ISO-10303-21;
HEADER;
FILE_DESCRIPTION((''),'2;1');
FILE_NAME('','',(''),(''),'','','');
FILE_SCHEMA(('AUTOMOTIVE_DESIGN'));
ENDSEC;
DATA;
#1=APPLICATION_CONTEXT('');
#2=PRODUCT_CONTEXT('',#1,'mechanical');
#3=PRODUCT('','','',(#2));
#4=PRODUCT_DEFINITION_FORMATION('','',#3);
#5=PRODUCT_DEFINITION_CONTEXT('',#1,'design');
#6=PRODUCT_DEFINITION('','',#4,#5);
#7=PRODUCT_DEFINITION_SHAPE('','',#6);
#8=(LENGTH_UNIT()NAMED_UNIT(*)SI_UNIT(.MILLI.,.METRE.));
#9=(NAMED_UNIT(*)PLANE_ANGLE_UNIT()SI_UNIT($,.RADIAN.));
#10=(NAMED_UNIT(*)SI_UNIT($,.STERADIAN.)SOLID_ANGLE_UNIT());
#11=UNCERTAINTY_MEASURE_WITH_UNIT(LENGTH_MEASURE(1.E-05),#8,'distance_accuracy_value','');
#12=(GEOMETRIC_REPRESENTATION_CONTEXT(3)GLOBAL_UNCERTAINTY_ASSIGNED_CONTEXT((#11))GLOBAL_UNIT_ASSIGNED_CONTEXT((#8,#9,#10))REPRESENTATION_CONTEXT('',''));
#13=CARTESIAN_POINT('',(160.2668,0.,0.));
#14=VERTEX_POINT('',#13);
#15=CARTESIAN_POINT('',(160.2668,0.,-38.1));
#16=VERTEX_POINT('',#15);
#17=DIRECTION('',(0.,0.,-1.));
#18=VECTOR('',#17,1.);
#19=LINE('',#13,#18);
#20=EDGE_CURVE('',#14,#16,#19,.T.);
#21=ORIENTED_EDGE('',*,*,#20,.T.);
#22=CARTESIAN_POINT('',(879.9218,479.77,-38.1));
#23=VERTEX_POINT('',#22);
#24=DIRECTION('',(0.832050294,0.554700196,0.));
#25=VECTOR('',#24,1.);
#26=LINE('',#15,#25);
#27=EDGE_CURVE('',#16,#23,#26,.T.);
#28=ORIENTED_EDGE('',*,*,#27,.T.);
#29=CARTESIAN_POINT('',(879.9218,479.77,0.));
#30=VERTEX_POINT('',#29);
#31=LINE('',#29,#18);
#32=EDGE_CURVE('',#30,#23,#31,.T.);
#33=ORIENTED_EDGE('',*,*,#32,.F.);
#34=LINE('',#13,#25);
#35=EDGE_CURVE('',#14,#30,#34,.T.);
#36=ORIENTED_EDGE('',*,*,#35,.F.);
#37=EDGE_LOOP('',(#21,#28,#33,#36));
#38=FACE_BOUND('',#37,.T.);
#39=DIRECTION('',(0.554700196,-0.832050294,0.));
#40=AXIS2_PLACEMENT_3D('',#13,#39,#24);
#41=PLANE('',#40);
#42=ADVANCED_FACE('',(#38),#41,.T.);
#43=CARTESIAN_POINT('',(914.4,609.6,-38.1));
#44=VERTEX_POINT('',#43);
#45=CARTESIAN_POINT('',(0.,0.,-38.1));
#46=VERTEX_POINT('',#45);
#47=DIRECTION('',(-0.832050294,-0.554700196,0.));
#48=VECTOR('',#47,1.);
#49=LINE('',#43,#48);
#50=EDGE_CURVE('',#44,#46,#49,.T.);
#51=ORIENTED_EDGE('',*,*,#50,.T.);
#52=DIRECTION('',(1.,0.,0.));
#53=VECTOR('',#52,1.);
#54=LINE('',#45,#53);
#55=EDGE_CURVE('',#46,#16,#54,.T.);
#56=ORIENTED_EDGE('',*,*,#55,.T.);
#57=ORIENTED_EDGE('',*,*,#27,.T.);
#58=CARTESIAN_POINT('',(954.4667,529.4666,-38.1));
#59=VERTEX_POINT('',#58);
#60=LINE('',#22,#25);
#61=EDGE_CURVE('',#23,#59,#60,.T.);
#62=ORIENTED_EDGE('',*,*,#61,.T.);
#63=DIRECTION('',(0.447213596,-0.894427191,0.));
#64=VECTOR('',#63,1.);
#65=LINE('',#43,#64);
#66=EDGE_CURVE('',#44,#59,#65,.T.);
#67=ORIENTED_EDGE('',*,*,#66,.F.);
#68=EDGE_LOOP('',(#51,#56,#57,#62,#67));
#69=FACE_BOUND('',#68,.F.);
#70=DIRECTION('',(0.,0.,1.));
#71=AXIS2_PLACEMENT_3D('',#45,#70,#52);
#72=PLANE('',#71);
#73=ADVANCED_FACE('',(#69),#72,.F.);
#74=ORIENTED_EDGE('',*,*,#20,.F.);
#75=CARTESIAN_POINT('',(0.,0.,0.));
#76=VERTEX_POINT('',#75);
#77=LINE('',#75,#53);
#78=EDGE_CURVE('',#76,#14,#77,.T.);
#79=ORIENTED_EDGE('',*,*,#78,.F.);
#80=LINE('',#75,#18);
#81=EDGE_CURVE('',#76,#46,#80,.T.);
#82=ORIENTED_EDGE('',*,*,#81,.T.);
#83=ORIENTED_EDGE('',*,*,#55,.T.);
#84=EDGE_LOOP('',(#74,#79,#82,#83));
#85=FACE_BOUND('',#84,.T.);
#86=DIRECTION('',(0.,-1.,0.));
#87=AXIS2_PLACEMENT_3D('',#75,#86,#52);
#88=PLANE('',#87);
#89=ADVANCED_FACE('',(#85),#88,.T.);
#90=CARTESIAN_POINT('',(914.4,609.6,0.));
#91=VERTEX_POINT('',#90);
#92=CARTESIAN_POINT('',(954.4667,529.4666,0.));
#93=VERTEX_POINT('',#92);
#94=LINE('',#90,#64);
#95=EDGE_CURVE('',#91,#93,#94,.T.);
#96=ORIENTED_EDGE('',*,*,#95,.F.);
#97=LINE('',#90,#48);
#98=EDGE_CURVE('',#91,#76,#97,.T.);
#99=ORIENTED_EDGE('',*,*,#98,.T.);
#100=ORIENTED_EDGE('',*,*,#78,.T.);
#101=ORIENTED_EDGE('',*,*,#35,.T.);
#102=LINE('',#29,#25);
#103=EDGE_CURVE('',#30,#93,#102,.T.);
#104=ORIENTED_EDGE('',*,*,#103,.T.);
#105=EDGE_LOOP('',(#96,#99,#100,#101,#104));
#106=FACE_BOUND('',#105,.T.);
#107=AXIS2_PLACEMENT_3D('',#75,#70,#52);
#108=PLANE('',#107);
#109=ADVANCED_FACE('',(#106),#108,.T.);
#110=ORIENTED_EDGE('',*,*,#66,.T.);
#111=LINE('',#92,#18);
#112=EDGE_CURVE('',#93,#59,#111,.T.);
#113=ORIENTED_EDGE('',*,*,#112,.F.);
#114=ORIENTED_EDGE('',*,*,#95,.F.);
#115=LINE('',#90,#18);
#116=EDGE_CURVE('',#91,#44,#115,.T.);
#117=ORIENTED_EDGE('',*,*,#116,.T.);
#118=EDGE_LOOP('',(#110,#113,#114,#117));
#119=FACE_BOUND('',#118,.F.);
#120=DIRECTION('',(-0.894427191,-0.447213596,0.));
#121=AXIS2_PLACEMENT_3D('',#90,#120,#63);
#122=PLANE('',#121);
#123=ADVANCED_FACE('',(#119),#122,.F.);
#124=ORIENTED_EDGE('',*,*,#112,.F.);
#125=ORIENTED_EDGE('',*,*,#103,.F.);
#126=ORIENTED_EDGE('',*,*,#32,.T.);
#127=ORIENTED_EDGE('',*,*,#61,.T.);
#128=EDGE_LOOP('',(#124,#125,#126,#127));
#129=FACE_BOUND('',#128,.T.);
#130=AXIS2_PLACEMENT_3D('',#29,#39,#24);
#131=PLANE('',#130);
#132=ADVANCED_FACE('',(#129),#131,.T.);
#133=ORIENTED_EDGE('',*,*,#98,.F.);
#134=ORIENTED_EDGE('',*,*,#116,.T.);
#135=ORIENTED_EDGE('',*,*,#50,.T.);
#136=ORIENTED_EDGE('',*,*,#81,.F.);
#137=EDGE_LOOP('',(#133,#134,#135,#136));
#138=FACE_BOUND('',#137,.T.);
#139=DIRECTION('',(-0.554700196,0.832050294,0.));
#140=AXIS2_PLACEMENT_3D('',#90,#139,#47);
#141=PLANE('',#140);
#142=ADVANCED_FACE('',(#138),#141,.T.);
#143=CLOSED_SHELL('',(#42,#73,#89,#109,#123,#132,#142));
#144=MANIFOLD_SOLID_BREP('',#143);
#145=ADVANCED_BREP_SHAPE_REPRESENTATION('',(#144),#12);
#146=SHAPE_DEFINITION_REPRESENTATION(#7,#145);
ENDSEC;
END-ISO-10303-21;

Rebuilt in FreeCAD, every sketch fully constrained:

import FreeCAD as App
import Part
import Sketcher
Q = App.Units.Quantity

doc = App.newDocument("Part")
params = doc.addObject("Spreadsheet::Sheet", "Params")
for row, (alias, value) in enumerate([
    ("pad1_length", "1.5 in"),
], start=1):
    params.set(f"A{row}", alias)
    params.set(f"B{row}", "=" + value)
    params.setAlias(f"B{row}", alias)

body = doc.addObject("PartDesign::Body", "Body")

sketch1 = body.newObject("Sketcher::SketchObject", "Sketch")
sketch1.AttachmentSupport = (doc.getObject("XY_Plane"), [""])
sketch1.MapMode = "FlatFace"
sketch1.addGeometry([
    Part.LineSegment(App.Vector(914, 610, 0), App.Vector(0, 0, 0)),
    Part.LineSegment(App.Vector(0, 0, 0), App.Vector(160, 0, 0)),
    Part.LineSegment(App.Vector(160, 0, 0), App.Vector(954, 529, 0)),
    Part.LineSegment(App.Vector(954, 529, 0), App.Vector(914, 610, 0)),
], False)
sketch1.addConstraint([
    Sketcher.Constraint("Coincident", 0, 2, 1, 1),
    Sketcher.Constraint("Coincident", 1, 2, 2, 1),
    Sketcher.Constraint("Coincident", 2, 2, 3, 1),
    Sketcher.Constraint("Coincident", 3, 2, 0, 1),
    Sketcher.Constraint("Horizontal", 1),
    Sketcher.Constraint("Coincident", 0, 2, -1, 1),
    Sketcher.Constraint("Parallel", 0, 2),
    Sketcher.Constraint("DistanceX", -1, 1, 3, 2, Q("36 in")),
    Sketcher.Constraint("DistanceY", -1, 1, 3, 2, Q("24 in")),
    Sketcher.Constraint("DistanceX", 1, 1, 1, 2, Q("160.2668 mm")),
    Sketcher.Constraint("Distance", 2, Q("954.5095 mm")),
])
pad1 = body.newObject("PartDesign::Pad", "Pad")
pad1.Profile = sketch1
pad1.setExpression("Length", "Params.pad1_length")
pad1.Reversed = True

doc.recompute()
